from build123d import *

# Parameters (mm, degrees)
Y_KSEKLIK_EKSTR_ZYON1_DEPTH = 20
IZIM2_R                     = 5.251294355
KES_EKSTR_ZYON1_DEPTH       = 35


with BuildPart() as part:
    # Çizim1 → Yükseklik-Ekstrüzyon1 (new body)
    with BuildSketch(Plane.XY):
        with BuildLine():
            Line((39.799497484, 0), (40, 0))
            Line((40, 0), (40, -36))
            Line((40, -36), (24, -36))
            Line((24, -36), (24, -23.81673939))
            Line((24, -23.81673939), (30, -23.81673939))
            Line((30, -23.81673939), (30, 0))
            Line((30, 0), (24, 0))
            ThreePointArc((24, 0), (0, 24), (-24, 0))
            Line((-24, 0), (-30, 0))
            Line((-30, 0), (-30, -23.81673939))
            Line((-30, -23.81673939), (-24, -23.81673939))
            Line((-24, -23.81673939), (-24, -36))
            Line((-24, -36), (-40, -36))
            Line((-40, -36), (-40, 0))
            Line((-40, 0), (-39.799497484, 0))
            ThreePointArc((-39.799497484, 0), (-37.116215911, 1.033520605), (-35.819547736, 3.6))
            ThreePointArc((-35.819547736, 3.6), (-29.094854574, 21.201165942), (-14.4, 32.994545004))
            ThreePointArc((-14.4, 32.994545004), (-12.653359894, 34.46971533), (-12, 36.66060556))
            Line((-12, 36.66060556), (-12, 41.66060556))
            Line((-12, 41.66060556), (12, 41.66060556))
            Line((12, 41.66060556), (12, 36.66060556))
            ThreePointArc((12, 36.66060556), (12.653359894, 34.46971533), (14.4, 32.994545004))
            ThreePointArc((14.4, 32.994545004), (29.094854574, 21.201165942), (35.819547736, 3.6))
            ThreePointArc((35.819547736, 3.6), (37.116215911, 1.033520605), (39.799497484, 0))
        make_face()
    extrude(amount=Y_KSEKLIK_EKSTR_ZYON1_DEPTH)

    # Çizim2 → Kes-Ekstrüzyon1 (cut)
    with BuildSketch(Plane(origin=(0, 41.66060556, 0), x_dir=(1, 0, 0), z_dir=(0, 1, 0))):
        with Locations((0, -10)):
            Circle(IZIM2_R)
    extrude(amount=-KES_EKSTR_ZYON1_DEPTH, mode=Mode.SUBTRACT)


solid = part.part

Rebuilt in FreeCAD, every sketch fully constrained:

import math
import FreeCAD as App
import Part
import Sketcher

V = App.Vector

doc = App.newDocument("Part")
body = doc.addObject("PartDesign::Body", "Body")

# Sketch on XY plane
sketch1 = body.newObject("Sketcher::SketchObject", "Sketch")
sketch1.AttachmentSupport = (doc.getObject("XY_Plane"), [""])
sketch1.MapMode = "FlatFace"
sketch1.addGeometry(Part.LineSegment(V(40, 0, 0), V(39.8, 0, 0)), False)
sketch1.addGeometry(Part.ArcOfCircle(Part.Circle(V(39.8, 4, 0), V(0, 0, 1), 4), math.radians(-174), math.radians(-90)), False)
sketch1.addGeometry(Part.ArcOfCircle(Part.Circle(V(0, 0, 0), V(0, 0, 1), 36), math.radians(6), math.radians(66)), False)
sketch1.addGeometry(Part.ArcOfCircle(Part.Circle(V(16, 36.66, 0), V(0, 0, 1), 4), math.radians(180), math.radians(246)), False)
sketch1.addGeometry(Part.LineSegment(V(12, 36.66, 0), V(12, 41.66, 0)), False)
sketch1.addGeometry(Part.LineSegment(V(12, 41.66, 0), V(-12, 41.66, 0)), False)
sketch1.addGeometry(Part.LineSegment(V(-12, 41.66, 0), V(-12, 36.66, 0)), False)
sketch1.addGeometry(Part.ArcOfCircle(Part.Circle(V(-16, 36.66, 0), V(0, 0, 1), 4), math.radians(-66), math.radians(0)), False)
sketch1.addGeometry(Part.ArcOfCircle(Part.Circle(V(0, 0, 0), V(0, 0, 1), 36), math.radians(114), math.radians(174)), False)
sketch1.addGeometry(Part.ArcOfCircle(Part.Circle(V(-39.8, 4, 0), V(0, 0, 1), 4), math.radians(-90), math.radians(-6)), False)
sketch1.addGeometry(Part.LineSegment(V(-39.8, 0, 0), V(-40, 0, 0)), False)
sketch1.addGeometry(Part.LineSegment(V(-40, 0, 0), V(-40, -36, 0)), False)
sketch1.addGeometry(Part.LineSegment(V(-40, -36, 0), V(-24, -36, 0)), False)
sketch1.addGeometry(Part.LineSegment(V(-24, -36, 0), V(-24, -23.82, 0)), False)
sketch1.addGeometry(Part.LineSegment(V(-24, -23.82, 0), V(-30, -23.82, 0)), False)
sketch1.addGeometry(Part.LineSegment(V(-30, -23.82, 0), V(-30, 0, 0)), False)
sketch1.addGeometry(Part.LineSegment(V(-30, 0, 0), V(-24, 0, 0)), False)
sketch1.addGeometry(Part.ArcOfCircle(Part.Circle(V(0, 0, 0), V(0, 0, 1), 24), math.radians(0), math.radians(180)), False)
sketch1.addGeometry(Part.LineSegment(V(24, 0, 0), V(30, 0, 0)), False)
sketch1.addGeometry(Part.LineSegment(V(30, 0, 0), V(30, -23.82, 0)), False)
sketch1.addGeometry(Part.LineSegment(V(30, -23.82, 0), V(24, -23.82, 0)), False)
sketch1.addGeometry(Part.LineSegment(V(24, -23.82, 0), V(24, -36, 0)), False)
sketch1.addGeometry(Part.LineSegment(V(24, -36, 0), V(40, -36, 0)), False)
sketch1.addGeometry(Part.LineSegment(V(40, -36, 0), V(40, 0, 0)), False)
sketch1.addConstraint(Sketcher.Constraint("Tangent", 0, 2, 1, 2))
sketch1.addConstraint(Sketcher.Constraint("Tangent", 1, 1, 2, 1))
sketch1.addConstraint(Sketcher.Constraint("Tangent", 2, 2, 3, 2))
sketch1.addConstraint(Sketcher.Constraint("Tangent", 3, 1, 4, 1))
sketch1.addConstraint(Sketcher.Constraint("Coincident", 4, 2, 5, 1))
sketch1.addConstraint(Sketcher.Constraint("Coincident", 5, 2, 6, 1))
sketch1.addConstraint(Sketcher.Constraint("Tangent", 6, 2, 7, 2))
sketch1.addConstraint(Sketcher.Constraint("Tangent", 7, 1, 8, 1))
sketch1.addConstraint(Sketcher.Constraint("Tangent", 8, 2, 9, 2))
sketch1.addConstraint(Sketcher.Constraint("Tangent", 9, 1, 10, 1))
sketch1.addConstraint(Sketcher.Constraint("Coincident", 10, 2, 11, 1))
sketch1.addConstraint(Sketcher.Constraint("Coincident", 11, 2, 12, 1))
sketch1.addConstraint(Sketcher.Constraint("Coincident", 12, 2, 13, 1))
sketch1.addConstraint(Sketcher.Constraint("Coincident", 13, 2, 14, 1))
sketch1.addConstraint(Sketcher.Constraint("Coincident", 14, 2, 15, 1))
sketch1.addConstraint(Sketcher.Constraint("Coincident", 15, 2, 16, 1))
sketch1.addConstraint(Sketcher.Constraint("Coincident", 16, 2, 17, 2))
sketch1.addConstraint(Sketcher.Constraint("Coincident", 17, 1, 18, 1))
sketch1.addConstraint(Sketcher.Constraint("Coincident", 18, 2, 19, 1))
sketch1.addConstraint(Sketcher.Constraint("Coincident", 19, 2, 20, 1))
sketch1.addConstraint(Sketcher.Constraint("Coincident", 20, 2, 21, 1))
sketch1.addConstraint(Sketcher.Constraint("Coincident", 21, 2, 22, 1))
sketch1.addConstraint(Sketcher.Constraint("Coincident", 22, 2, 23, 1))
sketch1.addConstraint(Sketcher.Constraint("Coincident", 23, 2, 0, 1))
sketch1.addConstraint(Sketcher.Constraint("Horizontal", 0))
sketch1.addConstraint(Sketcher.Constraint("Vertical", 4))
sketch1.addConstraint(Sketcher.Constraint("Horizontal", 5))
sketch1.addConstraint(Sketcher.Constraint("Vertical", 6))
sketch1.addConstraint(Sketcher.Constraint("Horizontal", 10))
sketch1.addConstraint(Sketcher.Constraint("Vertical", 11))
sketch1.addConstraint(Sketcher.Constraint("Horizontal", 12))
sketch1.addConstraint(Sketcher.Constraint("Vertical", 13))
sketch1.addConstraint(Sketcher.Constraint("Horizontal", 14))
sketch1.addConstraint(Sketcher.Constraint("Vertical", 15))
sketch1.addConstraint(Sketcher.Constraint("Horizontal", 16))
sketch1.addConstraint(Sketcher.Constraint("Horizontal", 18))
sketch1.addConstraint(Sketcher.Constraint("Vertical", 19))
sketch1.addConstraint(Sketcher.Constraint("Horizontal", 20))
sketch1.addConstraint(Sketcher.Constraint("Vertical", 21))
sketch1.addConstraint(Sketcher.Constraint("Horizontal", 22))
sketch1.addConstraint(Sketcher.Constraint("Vertical", 23))
sketch1.addConstraint(Sketcher.Constraint("Coincident", 2, 3, -1, 1))
sketch1.addConstraint(Sketcher.Constraint("Coincident", 8, 3, -1, 1))
sketch1.addConstraint(Sketcher.Constraint("Coincident", 17, 3, -1, 1))
sketch1.addConstraint(Sketcher.Constraint("Equal", 1, 3))
sketch1.addConstraint(Sketcher.Constraint("Equal", 3, 7))
sketch1.addConstraint(Sketcher.Constraint("Equal", 2, 8))
sketch1.addConstraint(Sketcher.Constraint("Equal", 7, 9))
sketch1.addConstraint(Sketcher.Constraint("Symmetric", 0, 2, 9, 1, -1, 1))
sketch1.addConstraint(Sketcher.Constraint("Symmetric", 15, 2, 18, 2, -1, 1))
sketch1.addConstraint(Sketcher.Constraint("Symmetric", 13, 2, 20, 2, -2))
sketch1.addConstraint(Sketcher.Constraint("Symmetric", 11, 2, 22, 2, -2))
sketch1.addConstraint(Sketcher.Constraint("PointOnObject", 15, 2, -1))
sketch1.addConstraint(Sketcher.Constraint("Horizontal", 3, 3, 7, 3))
sketch1.addConstraint(Sketcher.Constraint("Vertical", 13, 2, 16, 2))
sketch1.addConstraint(Sketcher.Constraint("Radius", 1, 4.0))
sketch1.addConstraint(Sketcher.Constraint("Radius", 2, 36.0))
sketch1.addConstraint(Sketcher.Constraint("Radius", 17, 24.0))
sketch1.addConstraint(Sketcher.Constraint("DistanceX", 5, 2, 5, 1, 24.0))
sketch1.addConstraint(Sketcher.Constraint("DistanceX", 12, 1, 12, 2, 16.0))
sketch1.addConstraint(Sketcher.Constraint("DistanceX", 14, 2, 14, 1, 6.0))
sketch1.addConstraint(Sketcher.Constraint("DistanceY", 4, 1, 4, 2, 5.0))
sketch1.addConstraint(Sketcher.Constraint("DistanceY", 11, 2, 11, 1, 36.0))
sketch1.addConstraint(Sketcher.Constraint("DistanceY", 13, 1, 13, 2, 12.183261))
pad1 = body.newObject("PartDesign::Pad", "Pad")
pad1.Profile = sketch1
pad1.Length = 20

# Sketch on XZ plane
sketch2 = body.newObject("Sketcher::SketchObject", "Sketch001")
sketch2.AttachmentSupport = (doc.getObject("XZ_Plane"), [""])
sketch2.MapMode = "FlatFace"
sketch2.AttachmentOffset = App.Placement(V(0, 0, -41.660606), App.Rotation())
sketch2.addGeometry(Part.Circle(V(0, 10, 0), V(0, 0, 1), 5), False)
sketch2.addConstraint(Sketcher.Constraint("PointOnObject", 0, 3, -2))
sketch2.addConstraint(Sketcher.Constraint("DistanceY", -1, 1, 0, 3, 10.0))
sketch2.addConstraint(Sketcher.Constraint("Diameter", 0, 10.502589))
pocket1 = body.newObject("PartDesign::Pocket", "Pocket")
pocket1.Profile = sketch2
pocket1.Length = 35
pocket1.Reversed = True

doc.recompute()
